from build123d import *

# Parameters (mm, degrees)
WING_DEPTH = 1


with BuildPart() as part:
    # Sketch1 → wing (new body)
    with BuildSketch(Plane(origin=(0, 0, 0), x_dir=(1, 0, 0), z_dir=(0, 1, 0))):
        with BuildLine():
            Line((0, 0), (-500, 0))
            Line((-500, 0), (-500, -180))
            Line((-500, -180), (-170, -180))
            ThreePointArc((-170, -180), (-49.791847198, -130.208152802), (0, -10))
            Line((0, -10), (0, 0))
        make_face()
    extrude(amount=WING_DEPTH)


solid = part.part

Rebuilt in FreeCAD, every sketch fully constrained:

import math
import FreeCAD as App
import Part
import Sketcher
Q = App.Units.Quantity

doc = App.newDocument("Part")
body = doc.addObject("PartDesign::Body", "Body")

# Sketch on XZ plane
sketch1 = doc.addObject("Sketcher::SketchObject", "Sketch")
body.addObject(sketch1)
sketch1.AttachmentSupport = (doc.XZ_Plane, [""])
sketch1.MapMode = "FlatFace"
sketch1.addGeometry([
    Part.LineSegment(App.Vector(0, 0, 0), App.Vector(-500, 0, 0)),  # 0
    Part.LineSegment(App.Vector(-500, 0, 0), App.Vector(-500, 180, 0)),  # 1
    Part.LineSegment(App.Vector(-500, 180, 0), App.Vector(-170, 180, 0)),  # 2
    Part.ArcOfCircle(Part.Circle(App.Vector(-170, 10, 0), App.Vector(0, 0, 1), 170), math.radians(0), math.radians(90)),  # 3
    Part.LineSegment(App.Vector(0, 10, 0), App.Vector(0, 0, 0)),  # 4
], False)
sketch1.addConstraint([
    Sketcher.Constraint("Coincident", 0, 2, 1, 1),
    Sketcher.Constraint("Coincident", 1, 2, 2, 1),
    Sketcher.Constraint("Tangent", 2, 2, 3, 2),
    Sketcher.Constraint("Tangent", 3, 1, 4, 1),
    Sketcher.Constraint("Coincident", 4, 2, 0, 1),
    Sketcher.Constraint("Horizontal", 0),
    Sketcher.Constraint("Vertical", 1),
    Sketcher.Constraint("Horizontal", 2),
    Sketcher.Constraint("Vertical", 4),
    Sketcher.Constraint("Coincident", 4, 2, -1, 1),
    Sketcher.Constraint("Radius", 3, Q("170 mm")),
    Sketcher.Constraint("DistanceX", 0, 2, 0, 1, Q("500 mm")),
    Sketcher.Constraint("DistanceY", 1, 1, 1, 2, Q("180 mm")),
])
pad1 = doc.addObject("PartDesign::Pad", "Pad")
body.addObject(pad1)
pad1.Profile = sketch1
pad1.Length = 1
pad1.Reversed = True

doc.recompute()
